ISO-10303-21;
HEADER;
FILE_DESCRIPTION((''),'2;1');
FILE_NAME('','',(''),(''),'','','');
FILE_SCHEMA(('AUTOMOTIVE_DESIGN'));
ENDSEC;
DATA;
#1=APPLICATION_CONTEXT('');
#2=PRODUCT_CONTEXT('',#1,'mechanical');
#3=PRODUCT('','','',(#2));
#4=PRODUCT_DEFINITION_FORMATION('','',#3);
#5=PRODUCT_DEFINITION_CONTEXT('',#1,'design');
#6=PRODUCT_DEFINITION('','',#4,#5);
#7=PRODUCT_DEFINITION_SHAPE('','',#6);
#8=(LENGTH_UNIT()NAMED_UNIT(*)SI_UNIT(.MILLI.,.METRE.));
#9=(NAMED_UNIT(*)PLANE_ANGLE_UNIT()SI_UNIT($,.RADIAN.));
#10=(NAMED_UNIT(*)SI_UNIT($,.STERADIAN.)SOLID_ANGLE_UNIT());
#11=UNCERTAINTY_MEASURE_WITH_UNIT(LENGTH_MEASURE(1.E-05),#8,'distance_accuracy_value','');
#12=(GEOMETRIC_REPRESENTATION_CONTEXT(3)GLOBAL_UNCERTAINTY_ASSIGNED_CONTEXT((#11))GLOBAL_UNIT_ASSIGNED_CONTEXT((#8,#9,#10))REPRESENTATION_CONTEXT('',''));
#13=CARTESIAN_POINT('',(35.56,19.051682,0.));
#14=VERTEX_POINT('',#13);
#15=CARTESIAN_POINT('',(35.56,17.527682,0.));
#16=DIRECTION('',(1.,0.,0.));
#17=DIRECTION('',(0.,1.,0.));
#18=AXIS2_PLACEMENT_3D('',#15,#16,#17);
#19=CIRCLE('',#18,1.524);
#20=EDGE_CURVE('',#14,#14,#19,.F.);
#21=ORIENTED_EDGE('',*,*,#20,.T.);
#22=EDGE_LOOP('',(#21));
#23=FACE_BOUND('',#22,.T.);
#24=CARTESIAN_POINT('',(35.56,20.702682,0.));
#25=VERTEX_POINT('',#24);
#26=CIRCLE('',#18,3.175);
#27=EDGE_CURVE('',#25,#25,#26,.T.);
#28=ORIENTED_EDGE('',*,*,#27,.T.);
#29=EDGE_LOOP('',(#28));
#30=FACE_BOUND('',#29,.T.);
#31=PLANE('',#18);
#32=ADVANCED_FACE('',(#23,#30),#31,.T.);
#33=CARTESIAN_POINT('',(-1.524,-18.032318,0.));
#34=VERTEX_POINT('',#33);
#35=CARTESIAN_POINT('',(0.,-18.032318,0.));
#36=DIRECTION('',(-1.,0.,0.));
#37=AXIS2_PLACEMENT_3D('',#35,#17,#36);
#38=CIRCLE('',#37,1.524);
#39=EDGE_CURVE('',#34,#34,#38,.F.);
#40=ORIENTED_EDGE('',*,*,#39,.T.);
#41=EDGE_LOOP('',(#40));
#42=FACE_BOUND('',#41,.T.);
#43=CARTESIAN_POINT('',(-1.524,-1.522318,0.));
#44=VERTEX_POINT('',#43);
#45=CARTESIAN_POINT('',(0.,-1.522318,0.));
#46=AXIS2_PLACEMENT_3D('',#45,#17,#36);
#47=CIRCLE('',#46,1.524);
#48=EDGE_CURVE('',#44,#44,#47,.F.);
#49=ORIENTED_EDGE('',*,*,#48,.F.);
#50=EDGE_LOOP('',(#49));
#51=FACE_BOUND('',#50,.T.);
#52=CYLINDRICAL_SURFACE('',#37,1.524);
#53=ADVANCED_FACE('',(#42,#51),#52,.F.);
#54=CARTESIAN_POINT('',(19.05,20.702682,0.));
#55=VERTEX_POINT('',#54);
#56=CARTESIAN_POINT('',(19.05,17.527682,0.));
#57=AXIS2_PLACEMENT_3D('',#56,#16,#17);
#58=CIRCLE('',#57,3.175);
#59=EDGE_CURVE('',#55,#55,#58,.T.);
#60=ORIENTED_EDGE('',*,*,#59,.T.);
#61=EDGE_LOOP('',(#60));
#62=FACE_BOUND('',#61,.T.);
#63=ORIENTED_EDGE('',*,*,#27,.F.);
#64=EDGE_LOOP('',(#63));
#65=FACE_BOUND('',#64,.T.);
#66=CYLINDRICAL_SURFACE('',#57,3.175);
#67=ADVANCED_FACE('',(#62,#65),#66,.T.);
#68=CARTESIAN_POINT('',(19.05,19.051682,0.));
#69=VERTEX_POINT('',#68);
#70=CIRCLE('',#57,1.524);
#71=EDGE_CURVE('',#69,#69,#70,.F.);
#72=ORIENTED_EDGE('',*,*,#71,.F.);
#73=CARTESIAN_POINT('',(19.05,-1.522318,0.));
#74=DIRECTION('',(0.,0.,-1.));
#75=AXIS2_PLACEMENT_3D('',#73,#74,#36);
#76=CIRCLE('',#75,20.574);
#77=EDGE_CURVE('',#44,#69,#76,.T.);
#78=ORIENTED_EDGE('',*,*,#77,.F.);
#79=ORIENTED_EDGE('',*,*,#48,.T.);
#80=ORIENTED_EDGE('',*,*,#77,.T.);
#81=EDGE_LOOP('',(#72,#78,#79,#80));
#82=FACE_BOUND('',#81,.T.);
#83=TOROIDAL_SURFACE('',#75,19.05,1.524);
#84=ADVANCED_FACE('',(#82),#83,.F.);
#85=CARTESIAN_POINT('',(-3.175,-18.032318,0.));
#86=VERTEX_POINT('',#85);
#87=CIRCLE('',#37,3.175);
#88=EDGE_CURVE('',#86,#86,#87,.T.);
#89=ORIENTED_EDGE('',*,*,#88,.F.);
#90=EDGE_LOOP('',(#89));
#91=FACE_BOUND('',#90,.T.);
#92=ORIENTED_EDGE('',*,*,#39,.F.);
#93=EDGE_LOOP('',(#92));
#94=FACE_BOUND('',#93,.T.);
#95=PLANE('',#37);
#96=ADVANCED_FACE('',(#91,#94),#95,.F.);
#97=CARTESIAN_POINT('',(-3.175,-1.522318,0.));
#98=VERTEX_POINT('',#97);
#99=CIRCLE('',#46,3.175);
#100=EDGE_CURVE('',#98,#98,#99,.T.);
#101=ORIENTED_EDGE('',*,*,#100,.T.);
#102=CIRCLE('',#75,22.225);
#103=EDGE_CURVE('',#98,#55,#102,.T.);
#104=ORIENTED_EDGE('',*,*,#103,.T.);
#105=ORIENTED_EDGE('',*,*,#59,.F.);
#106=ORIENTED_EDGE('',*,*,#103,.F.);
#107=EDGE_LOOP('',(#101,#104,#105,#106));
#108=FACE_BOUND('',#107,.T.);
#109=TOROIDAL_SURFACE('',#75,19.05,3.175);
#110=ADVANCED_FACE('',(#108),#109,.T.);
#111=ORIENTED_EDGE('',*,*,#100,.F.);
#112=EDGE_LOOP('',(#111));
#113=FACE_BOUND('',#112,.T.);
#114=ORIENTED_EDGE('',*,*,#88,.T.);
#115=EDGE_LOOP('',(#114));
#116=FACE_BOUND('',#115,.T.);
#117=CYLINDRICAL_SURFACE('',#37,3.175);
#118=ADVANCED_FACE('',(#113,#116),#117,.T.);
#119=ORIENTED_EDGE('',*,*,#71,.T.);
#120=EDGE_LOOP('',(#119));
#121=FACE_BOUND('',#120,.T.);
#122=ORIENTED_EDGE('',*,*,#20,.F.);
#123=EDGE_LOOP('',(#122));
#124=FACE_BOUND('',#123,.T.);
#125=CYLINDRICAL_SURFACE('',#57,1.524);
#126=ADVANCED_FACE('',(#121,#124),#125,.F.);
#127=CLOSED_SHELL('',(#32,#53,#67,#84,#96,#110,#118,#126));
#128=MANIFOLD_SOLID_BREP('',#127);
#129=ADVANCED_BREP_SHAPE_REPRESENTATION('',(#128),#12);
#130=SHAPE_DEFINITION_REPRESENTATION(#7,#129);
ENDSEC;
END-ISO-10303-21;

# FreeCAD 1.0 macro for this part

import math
import FreeCAD as App
import Part
import Sketcher

V = App.Vector
Q = App.Units.Quantity

doc = App.newDocument("Part")
body = doc.addObject("PartDesign::Body", "Body")

# Sketch on YZ plane
sketch1 = body.newObject("Sketcher::SketchObject", "Sketch")
sketch1.AttachmentSupport = (doc.getObject("YZ_Plane"), [""])
sketch1.MapMode = "FlatFace"
sketch1.AttachmentOffset = App.Placement(V(0, 0, 1.4 * 25.4), App.Rotation())
sketch1.addGeometry([
    Part.Circle(V(17.527682, 0, 0), V(0, 0, 1), 3.175),
    Part.Circle(V(17.527682, 0, 0), V(0, 0, 1), 1.524),
], False)
sketch1.addConstraint([
    Sketcher.Constraint("Coincident", 1, 3, 0, 3),
    Sketcher.Constraint("PointOnObject", 0, 3, -1),
    Sketcher.Constraint("Diameter", 0, Q("0.25 in")),
    Sketcher.Constraint("Diameter", 1, Q("0.12 in")),
    Sketcher.Constraint("DistanceX", -1, 1, 0, 3, 17.527682),
])

# Sketch on XY plane
sketch2 = body.newObject("Sketcher::SketchObject", "Sketch001")
sketch2.AttachmentSupport = (doc.getObject("XY_Plane"), [""])
sketch2.MapMode = "FlatFace"
sketch2.addGeometry([
    Part.LineSegment(V(0, -18.032318, 0), V(0, -1.522318, 0)),
    Part.ArcOfCircle(Part.Circle(V(19.05, -1.522318, 0), V(0, 0, 1), 19.05), math.radians(90), math.radians(180)),
    Part.LineSegment(V(19.05, 17.527682, 0), V(35.56, 17.527682, 0)),
], False)
sketch2.addConstraint([
    Sketcher.Constraint("Tangent", 0, 2, 1, 2),
    Sketcher.Constraint("Tangent", 1, 1, 2, 1),
    Sketcher.Constraint("Vertical", 0),
    Sketcher.Constraint("Horizontal", 2),
    Sketcher.Constraint("PointOnObject", 0, 1, -2),
    Sketcher.Constraint("Equal", 2, 0),
    Sketcher.Constraint("Radius", 1, Q("0.75 in")),
    Sketcher.Constraint("DistanceX", 2, 1, 2, 2, Q("0.65 in")),
    Sketcher.Constraint("DistanceY", 1, 3, -1, 1, 1.522318),
])
doc.recompute()

additivepipe = body.newObject("PartDesign::AdditivePipe", "AdditivePipe")
additivepipe.Profile = sketch1
additivepipe.Spine = (sketch2, ["Edge1", "Edge2", "Edge3"])

doc.recompute()
